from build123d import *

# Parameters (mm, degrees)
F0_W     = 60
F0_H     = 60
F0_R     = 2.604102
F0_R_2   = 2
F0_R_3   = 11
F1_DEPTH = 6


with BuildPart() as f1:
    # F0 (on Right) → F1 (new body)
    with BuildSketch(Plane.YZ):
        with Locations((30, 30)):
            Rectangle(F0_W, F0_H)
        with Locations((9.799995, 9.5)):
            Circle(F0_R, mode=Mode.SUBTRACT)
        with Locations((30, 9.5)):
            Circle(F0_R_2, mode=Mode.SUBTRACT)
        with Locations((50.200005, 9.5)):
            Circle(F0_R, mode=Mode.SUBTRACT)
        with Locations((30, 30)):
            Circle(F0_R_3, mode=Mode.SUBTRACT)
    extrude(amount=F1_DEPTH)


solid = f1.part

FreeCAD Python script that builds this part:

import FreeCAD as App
import Part
import Sketcher


def add_polygon(sketch, points):
    """Adds a closed chain of lines whose ends are joined by coincident constraints."""
    first, n = sketch.GeometryCount, len(points)
    for a, b in zip(points, points[1:] + points[:1]):
        sketch.addGeometry(Part.LineSegment(App.Vector(*a, 0), App.Vector(*b, 0)), False)
    for i in range(n):
        sketch.addConstraint(Sketcher.Constraint("Coincident", first + i, 2, first + (i + 1) % n, 1))

doc = App.newDocument("Part")
body = doc.addObject("PartDesign::Body", "Body")

sketch1 = doc.addObject("Sketcher::SketchObject", "Sketch")
body.addObject(sketch1)
sketch1.AttachmentSupport = (doc.YZ_Plane, [""])
sketch1.MapMode = "FlatFace"
add_polygon(sketch1, [(0, 60), (0, 0), (60, 0), (60, 60)])
sketch1.addGeometry(Part.Circle(App.Vector(9.8, 9.5, 0), App.Vector(0, 0, 1), 2.6), False)
sketch1.addGeometry(Part.Circle(App.Vector(30, 9.5, 0), App.Vector(0, 0, 1), 2), False)
sketch1.addGeometry(Part.Circle(App.Vector(50.2, 9.5, 0), App.Vector(0, 0, 1), 2.6), False)
sketch1.addGeometry(Part.Circle(App.Vector(30, 30, 0), App.Vector(0, 0, 1), 11), False)
sketch1.addConstraint([
    Sketcher.Constraint("Vertical", 0),
    Sketcher.Constraint("Horizontal", 1),
    Sketcher.Constraint("Vertical", 2),
    Sketcher.Constraint("Horizontal", 3),
    Sketcher.Constraint("Coincident", 0, 2, -1, 1),
    Sketcher.Constraint("Equal", 4, 6),
    Sketcher.Constraint("Horizontal", 4, 3, 5, 3),
    Sketcher.Constraint("Horizontal", 5, 3, 6, 3),
    Sketcher.Constraint("Vertical", 5, 3, 7, 3),
    Sketcher.Constraint("Equal", 3, 0),
    Sketcher.Constraint("Diameter", 5, 4.0),
    Sketcher.Constraint("Diameter", 7, 22.0),
    Sketcher.Constraint("DistanceX", 1, 1, 1, 2, 60.0),
    Sketcher.Constraint("DistanceX", -1, 1, 5, 3, 30.0),
    Sketcher.Constraint("DistanceY", -1, 1, 7, 3, 30.0),
    Sketcher.Constraint("DistanceY", -1, 1, 4, 3, 9.5),
    Sketcher.Constraint("Diameter", 4, 5.208204),
    Sketcher.Constraint("DistanceX", 4, 3, 6, 3, 40.40001),
    Sketcher.Constraint("DistanceX", -1, 1, 4, 3, 9.799995),
])
pad1 = doc.addObject("PartDesign::Pad", "Pad")
body.addObject(pad1)
pad1.Profile = sketch1
pad1.Length = 6

doc.recompute()
